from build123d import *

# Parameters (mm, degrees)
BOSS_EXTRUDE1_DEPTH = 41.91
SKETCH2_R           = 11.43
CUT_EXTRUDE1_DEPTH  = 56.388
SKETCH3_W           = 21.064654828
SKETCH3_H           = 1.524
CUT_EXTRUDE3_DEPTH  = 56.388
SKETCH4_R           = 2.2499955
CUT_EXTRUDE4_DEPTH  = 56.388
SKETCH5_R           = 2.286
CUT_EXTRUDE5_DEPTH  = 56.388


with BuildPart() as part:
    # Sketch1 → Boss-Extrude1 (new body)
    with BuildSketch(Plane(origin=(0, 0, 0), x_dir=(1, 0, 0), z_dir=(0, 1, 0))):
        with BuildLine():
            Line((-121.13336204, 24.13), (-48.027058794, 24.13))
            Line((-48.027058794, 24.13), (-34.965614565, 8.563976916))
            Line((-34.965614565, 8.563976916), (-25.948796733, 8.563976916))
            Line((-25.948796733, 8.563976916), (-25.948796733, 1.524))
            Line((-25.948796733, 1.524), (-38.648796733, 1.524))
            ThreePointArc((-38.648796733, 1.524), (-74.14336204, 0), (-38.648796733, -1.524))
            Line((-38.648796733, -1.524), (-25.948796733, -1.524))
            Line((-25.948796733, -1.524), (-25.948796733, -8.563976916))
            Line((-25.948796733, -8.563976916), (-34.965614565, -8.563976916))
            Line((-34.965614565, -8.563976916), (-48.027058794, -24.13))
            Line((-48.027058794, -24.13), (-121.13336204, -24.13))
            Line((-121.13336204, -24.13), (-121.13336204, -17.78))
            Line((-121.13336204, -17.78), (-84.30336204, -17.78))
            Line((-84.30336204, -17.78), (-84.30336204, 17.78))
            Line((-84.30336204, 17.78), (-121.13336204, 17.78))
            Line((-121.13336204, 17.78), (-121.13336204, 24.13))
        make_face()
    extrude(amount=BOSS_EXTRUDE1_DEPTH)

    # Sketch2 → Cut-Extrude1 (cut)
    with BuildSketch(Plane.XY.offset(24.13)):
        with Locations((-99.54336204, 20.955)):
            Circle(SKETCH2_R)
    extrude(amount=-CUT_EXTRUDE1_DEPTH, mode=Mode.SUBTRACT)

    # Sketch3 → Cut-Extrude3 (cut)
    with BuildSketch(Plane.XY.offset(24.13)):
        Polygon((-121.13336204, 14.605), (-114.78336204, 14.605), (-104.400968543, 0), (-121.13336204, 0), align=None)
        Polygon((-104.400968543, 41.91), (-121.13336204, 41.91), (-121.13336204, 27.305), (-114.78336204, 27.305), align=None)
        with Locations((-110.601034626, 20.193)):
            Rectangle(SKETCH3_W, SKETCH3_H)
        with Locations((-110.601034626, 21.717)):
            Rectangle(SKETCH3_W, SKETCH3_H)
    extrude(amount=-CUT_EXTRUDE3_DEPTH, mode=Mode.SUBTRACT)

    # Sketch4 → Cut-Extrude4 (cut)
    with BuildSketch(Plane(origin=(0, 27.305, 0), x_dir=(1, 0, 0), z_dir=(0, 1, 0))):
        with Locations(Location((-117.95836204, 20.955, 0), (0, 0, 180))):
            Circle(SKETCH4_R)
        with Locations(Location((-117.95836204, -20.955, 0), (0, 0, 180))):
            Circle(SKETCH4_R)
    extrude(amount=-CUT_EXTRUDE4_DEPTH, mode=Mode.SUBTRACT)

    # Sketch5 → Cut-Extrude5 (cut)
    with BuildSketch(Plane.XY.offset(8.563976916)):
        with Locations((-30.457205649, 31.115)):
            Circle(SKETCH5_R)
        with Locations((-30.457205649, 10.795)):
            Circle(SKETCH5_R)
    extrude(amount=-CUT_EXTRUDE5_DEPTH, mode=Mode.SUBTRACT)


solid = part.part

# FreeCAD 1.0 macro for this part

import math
import FreeCAD as App
import Part
import Sketcher

V = App.Vector
Q = App.Units.Quantity

doc = App.newDocument("Part")
body = doc.addObject("PartDesign::Body", "Body")

sketch1 = body.newObject("Sketcher::SketchObject", "Sketch")
sketch1.AttachmentSupport = (doc.getObject("XZ_Plane"), [""])
sketch1.MapMode = "FlatFace"
sketch1.addGeometry([
    Part.LineSegment(V(-48.027059, -24.13, 0), V(-121.133362, -24.13, 0)),
    Part.LineSegment(V(-121.133362, -24.13, 0), V(-121.133362, -17.78, 0)),
    Part.LineSegment(V(-121.133362, -17.78, 0), V(-84.303362, -17.78, 0)),
    Part.LineSegment(V(-84.303362, -17.78, 0), V(-84.303362, 17.78, 0)),
    Part.LineSegment(V(-84.303362, 17.78, 0), V(-121.133362, 17.78, 0)),
    Part.LineSegment(V(-121.133362, 17.78, 0), V(-121.133362, 24.13, 0)),
    Part.LineSegment(V(-121.133362, 24.13, 0), V(-48.027059, 24.13, 0)),
    Part.LineSegment(V(-48.027059, 24.13, 0), V(-34.965615, 8.563977, 0)),
    Part.LineSegment(V(-34.965615, 8.563977, 0), V(-25.948797, 8.563977, 0)),
    Part.LineSegment(V(-25.948797, 8.563977, 0), V(-25.948797, 1.524, 0)),
    Part.LineSegment(V(-25.948797, 1.524, 0), V(-38.648797, 1.524, 0)),
    Part.ArcOfCircle(Part.Circle(V(-56.363362, 0, 0), V(0, 0, 1), 17.78), math.radians(4.9171), math.radians(355.0829)),
    Part.LineSegment(V(-38.648797, -1.524, 0), V(-25.948797, -1.524, 0)),
    Part.LineSegment(V(-25.948797, -1.524, 0), V(-25.948797, -8.563977, 0)),
    Part.LineSegment(V(-25.948797, -8.563977, 0), V(-34.965615, -8.563977, 0)),
    Part.LineSegment(V(-34.965615, -8.563977, 0), V(-48.027059, -24.13, 0)),
], False)
sketch1.addConstraint([
    Sketcher.Constraint("Coincident", 0, 2, 1, 1),
    Sketcher.Constraint("Coincident", 1, 2, 2, 1),
    Sketcher.Constraint("Coincident", 2, 2, 3, 1),
    Sketcher.Constraint("Coincident", 3, 2, 4, 1),
    Sketcher.Constraint("Coincident", 4, 2, 5, 1),
    Sketcher.Constraint("Coincident", 5, 2, 6, 1),
    Sketcher.Constraint("Coincident", 6, 2, 7, 1),
    Sketcher.Constraint("Coincident", 7, 2, 8, 1),
    Sketcher.Constraint("Coincident", 8, 2, 9, 1),
    Sketcher.Constraint("Coincident", 9, 2, 10, 1),
    Sketcher.Constraint("Coincident", 10, 2, 11, 1),
    Sketcher.Constraint("Coincident", 11, 2, 12, 1),
    Sketcher.Constraint("Coincident", 12, 2, 13, 1),
    Sketcher.Constraint("Coincident", 13, 2, 14, 1),
    Sketcher.Constraint("Coincident", 14, 2, 15, 1),
    Sketcher.Constraint("Coincident", 15, 2, 0, 1),
    Sketcher.Constraint("Horizontal", 0),
    Sketcher.Constraint("Vertical", 1),
    Sketcher.Constraint("Horizontal", 2),
    Sketcher.Constraint("Vertical", 3),
    Sketcher.Constraint("Horizontal", 4),
    Sketcher.Constraint("Vertical", 5),
    Sketcher.Constraint("Horizontal", 6),
    Sketcher.Constraint("Horizontal", 8),
    Sketcher.Constraint("Vertical", 9),
    Sketcher.Constraint("Horizontal", 10),
    Sketcher.Constraint("Horizontal", 12),
    Sketcher.Constraint("Vertical", 13),
    Sketcher.Constraint("Horizontal", 14),
    Sketcher.Constraint("Symmetric", 1, 2, 4, 2, -1),
    Sketcher.Constraint("Symmetric", 10, 2, 11, 2, -1),
    Sketcher.Constraint("Symmetric", 8, 2, 13, 2, -1),
    Sketcher.Constraint("Symmetric", 6, 2, 15, 2, -1),
    Sketcher.Constraint("Vertical", 7, 2, 14, 2),
    Sketcher.Constraint("Radius", 11, Q("0.7 in")),
    Sketcher.Constraint("DistanceX", 10, 2, 10, 1, Q("0.5 in")),
    Sketcher.Constraint("DistanceY", 3, 1, 3, 2, Q("1.4 in")),
    Sketcher.Constraint("Angle", 7, Q("-50 deg")),
    Sketcher.Constraint("Distance", 7, Q("0.8 in")),
    Sketcher.Constraint("DistanceX", 2, 1, 2, 2, Q("1.45 in")),
    Sketcher.Constraint("DistanceY", 1, 1, 1, 2, Q("0.25 in")),
    Sketcher.Constraint("DistanceX", 2, 2, 11, 3, Q("1.1 in")),
    Sketcher.Constraint("DistanceY", -1, 1, 9, 2, Q("0.06 in")),
    Sketcher.Constraint("DistanceX", 0, 2, 0, 1, 73.106303),
    Sketcher.Constraint("DistanceX", 6, 2, -1, 1, 48.027059),
])
pad1 = body.newObject("PartDesign::Pad", "Pad")
pad1.Profile = sketch1
pad1.Length = Q("1.65 in")
pad1.Reversed = True

sketch2 = body.newObject("Sketcher::SketchObject", "Sketch001")
sketch2.AttachmentSupport = (doc.getObject("XY_Plane"), [""])
sketch2.MapMode = "FlatFace"
sketch2.AttachmentOffset = App.Placement(V(0, 0, 0.95 * 25.4), App.Rotation())
sketch2.addGeometry(Part.Circle(V(-99.543362, 20.955, 0), V(0, 0, 1), 11.43), False)
sketch2.addConstraint([
    Sketcher.Constraint("Diameter", 0, Q("0.9 in")),
    Sketcher.Constraint("DistanceY", -1, 1, 0, 3, Q("0.825 in")),
    Sketcher.Constraint("DistanceX", 0, 3, -1, 1, 99.543362),
])
pocket1 = body.newObject("PartDesign::Pocket", "Pocket")
pocket1.Profile = sketch2
pocket1.Length = Q("2.22 in")

sketch3 = body.newObject("Sketcher::SketchObject", "Sketch002")
sketch3.AttachmentSupport = (doc.getObject("XY_Plane"), [""])
sketch3.MapMode = "FlatFace"
sketch3.AttachmentOffset = App.Placement(V(0, 0, 0.95 * 25.4), App.Rotation())
sketch3.addGeometry([
    Part.LineSegment(V(-114.783362, 14.605, 0), V(-121.133362, 14.605, 0)),
    Part.LineSegment(V(-121.133362, 14.605, 0), V(-121.133362, 0, 0)),
    Part.LineSegment(V(-121.133362, 0, 0), V(-104.400969, 0, 0)),
    Part.LineSegment(V(-104.400969, 0, 0), V(-114.783362, 14.605, 0)),
    Part.LineSegment(V(-104.400969, 41.91, 0), V(-121.133362, 41.91, 0)),
    Part.LineSegment(V(-121.133362, 41.91, 0), V(-121.133362, 27.305, 0)),
    Part.LineSegment(V(-121.133362, 27.305, 0), V(-114.783362, 27.305, 0)),
    Part.LineSegment(V(-114.783362, 27.305, 0), V(-104.400969, 41.91, 0)),
    Part.LineSegment(V(-121.133362, 19.431, 0), V(-100.068707, 19.431, 0)),
    Part.LineSegment(V(-100.068707, 19.431, 0), V(-100.068707, 22.479, 0)),
    Part.LineSegment(V(-100.068707, 22.479, 0), V(-121.133362, 22.479, 0)),
    Part.LineSegment(V(-121.133362, 22.479, 0), V(-121.133362, 19.431, 0)),
], False)
sketch3.addConstraint([
    Sketcher.Constraint("Coincident", 0, 2, 1, 1),
    Sketcher.Constraint("Coincident", 1, 2, 2, 1),
    Sketcher.Constraint("Coincident", 2, 2, 3, 1),
    Sketcher.Constraint("Coincident", 3, 2, 0, 1),
    Sketcher.Constraint("Coincident", 4, 2, 5, 1),
    Sketcher.Constraint("Coincident", 5, 2, 6, 1),
    Sketcher.Constraint("Coincident", 6, 2, 7, 1),
    Sketcher.Constraint("Coincident", 7, 2, 4, 1),
    Sketcher.Constraint("Coincident", 8, 2, 9, 1),
    Sketcher.Constraint("Coincident", 9, 2, 10, 1),
    Sketcher.Constraint("Coincident", 10, 2, 11, 1),
    Sketcher.Constraint("Coincident", 11, 2, 8, 1),
    Sketcher.Constraint("Horizontal", 0),
    Sketcher.Constraint("Vertical", 1),
    Sketcher.Constraint("Horizontal", 2),
    Sketcher.Constraint("Horizontal", 4),
    Sketcher.Constraint("Vertical", 5),
    Sketcher.Constraint("Horizontal", 6),
    Sketcher.Constraint("Horizontal", 8),
    Sketcher.Constraint("Vertical", 9),
    Sketcher.Constraint("Horizontal", 10),
    Sketcher.Constraint("Vertical", 11),
    Sketcher.Constraint("PointOnObject", 1, 2, -1),
    Sketcher.Constraint("Vertical", 1, 2, 4, 2),
    Sketcher.Constraint("Vertical", 3, 2, 6, 2),
    Sketcher.Constraint("Vertical", 2, 2, 7, 2),
    Sketcher.Constraint("Vertical", 5, 2, 10, 2),
    Sketcher.Constraint("Equal", 1, 5),
    Sketcher.Constraint("DistanceX", 0, 2, 0, 1, Q("0.25 in")),
    Sketcher.Constraint("DistanceY", 9, 1, 9, 2, Q("0.12 in")),
    Sketcher.Constraint("DistanceY", 0, 2, 5, 2, Q("0.5 in")),
    Sketcher.Constraint("DistanceY", 1, 2, 1, 1, Q("0.575 in")),
    Sketcher.Constraint("DistanceY", 3, 2, 8, 2, Q("0.19 in")),
    Sketcher.Constraint("DistanceX", 2, 1, 2, 2, 16.732393),
    Sketcher.Constraint("DistanceX", 8, 1, 8, 2, 21.064655),
    Sketcher.Constraint("DistanceX", 2, 2, -1, 1, 104.400969),
])
pocket2 = body.newObject("PartDesign::Pocket", "Pocket001")
pocket2.Profile = sketch3
pocket2.Length = Q("2.22 in")

sketch4 = body.newObject("Sketcher::SketchObject", "Sketch003")
sketch4.AttachmentSupport = (doc.getObject("XZ_Plane"), [""])
sketch4.MapMode = "FlatFace"
sketch4.AttachmentOffset = App.Placement(V(0, 0, -1.075 * 25.4), App.Rotation())
sketch4.addGeometry([
    Part.Circle(V(-117.958362, -20.955, 0), V(0, 0, 1), 2.249995),
    Part.Circle(V(-117.958362, 20.955, 0), V(0, 0, 1), 2.249995),
], False)
sketch4.addConstraint([
    Sketcher.Constraint("Equal", 0, 1),
    Sketcher.Constraint("Symmetric", 0, 3, 1, 3, -1),
    Sketcher.Constraint("DistanceY", 0, 3, 1, 3, Q("1.65 in")),
    Sketcher.Constraint("Diameter", 0, 4.499991),
    Sketcher.Constraint("DistanceX", 0, 3, -1, 1, 117.958362),
])
pocket3 = body.newObject("PartDesign::Pocket", "Pocket002")
pocket3.Profile = sketch4
pocket3.Length = Q("2.22 in")
pocket3.Reversed = True

sketch5 = body.newObject("Sketcher::SketchObject", "Sketch004")
sketch5.AttachmentSupport = (doc.getObject("XY_Plane"), [""])
sketch5.MapMode = "FlatFace"
sketch5.AttachmentOffset = App.Placement(V(0, 0, 8.563977), App.Rotation())
sketch5.addGeometry([
    Part.Circle(V(-30.457206, 31.115, 0), V(0, 0, 1), 2.286),
    Part.Circle(V(-30.457206, 10.795, 0), V(0, 0, 1), 2.286),
], False)
sketch5.addConstraint([
    Sketcher.Constraint("Equal", 0, 1),
    Sketcher.Constraint("Vertical", 0, 3, 1, 3),
    Sketcher.Constraint("Diameter", 0, Q("0.18 in")),
    Sketcher.Constraint("DistanceY", 1, 3, 0, 3, Q("0.8 in")),
    Sketcher.Constraint("DistanceY", -1, 1, 0, 3, Q("1.225 in")),
    Sketcher.Constraint("DistanceX", 0, 3, -1, 1, 30.457206),
])
pocket4 = body.newObject("PartDesign::Pocket", "Pocket003")
pocket4.Profile = sketch5
pocket4.Length = Q("2.22 in")

doc.recompute()
